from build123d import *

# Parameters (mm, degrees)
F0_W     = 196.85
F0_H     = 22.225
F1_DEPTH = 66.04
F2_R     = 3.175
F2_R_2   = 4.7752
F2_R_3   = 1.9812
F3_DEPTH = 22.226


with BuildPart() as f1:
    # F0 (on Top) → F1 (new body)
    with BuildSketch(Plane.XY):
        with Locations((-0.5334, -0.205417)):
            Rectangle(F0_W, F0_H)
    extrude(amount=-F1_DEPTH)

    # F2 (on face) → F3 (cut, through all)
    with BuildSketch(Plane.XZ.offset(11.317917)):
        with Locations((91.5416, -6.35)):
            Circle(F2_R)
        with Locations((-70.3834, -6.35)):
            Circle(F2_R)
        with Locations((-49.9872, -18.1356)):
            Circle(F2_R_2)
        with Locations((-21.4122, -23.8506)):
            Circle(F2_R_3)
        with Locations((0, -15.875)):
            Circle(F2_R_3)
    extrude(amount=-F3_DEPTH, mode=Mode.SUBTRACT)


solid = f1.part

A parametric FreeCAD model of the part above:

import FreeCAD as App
import Part
import Sketcher
from FreeCAD import Vector
Q = App.Units.Quantity

doc = App.newDocument("Part")
body = doc.addObject("PartDesign::Body", "Body")

# Sketch on XY plane
sketch1 = body.newObject("Sketcher::SketchObject", "Sketch")
sketch1.AttachmentSupport = (doc.getObject("XY_Plane"), [""])
sketch1.MapMode = "FlatFace"
sketch1.addGeometry(Part.LineSegment(Vector(-99, 11, 0), Vector(-99, -11, 0)), False)
sketch1.addGeometry(Part.LineSegment(Vector(-99, -11, 0), Vector(98, -11, 0)), False)
sketch1.addGeometry(Part.LineSegment(Vector(98, -11, 0), Vector(98, 11, 0)), False)
sketch1.addGeometry(Part.LineSegment(Vector(98, 11, 0), Vector(-99, 11, 0)), False)
sketch1.addConstraint(Sketcher.Constraint("Coincident", 0, 2, 1, 1))
sketch1.addConstraint(Sketcher.Constraint("Coincident", 1, 2, 2, 1))
sketch1.addConstraint(Sketcher.Constraint("Coincident", 2, 2, 3, 1))
sketch1.addConstraint(Sketcher.Constraint("Coincident", 3, 2, 0, 1))
sketch1.addConstraint(Sketcher.Constraint("Vertical", 0))
sketch1.addConstraint(Sketcher.Constraint("Horizontal", 1))
sketch1.addConstraint(Sketcher.Constraint("Vertical", 2))
sketch1.addConstraint(Sketcher.Constraint("Horizontal", 3))
sketch1.addConstraint(Sketcher.Constraint("DistanceX", 1, 1, 1, 2, Q("7.75 in")))
sketch1.addConstraint(Sketcher.Constraint("DistanceY", 0, 2, 0, 1, Q("0.875 in")))
sketch1.addConstraint(Sketcher.Constraint("DistanceX", 0, 2, -1, 1, Q("3.896 in")))
sketch1.addConstraint(Sketcher.Constraint("DistanceY", 0, 2, -1, 1, 11.317917))
pad1 = body.newObject("PartDesign::Pad", "Pad")
pad1.Profile = sketch1
pad1.Length = Q("2.6 in")
pad1.Reversed = True

# Sketch on XZ plane
sketch2 = body.newObject("Sketcher::SketchObject", "Sketch001")
sketch2.AttachmentSupport = (doc.getObject("XZ_Plane"), [""])
sketch2.MapMode = "FlatFace"
sketch2.AttachmentOffset = App.Placement(Vector(0, 0, 11.317917), App.Rotation())
sketch2.addGeometry(Part.Circle(Vector(91.5, -6.3, 0), Vector(0, 0, 1), 3.2), False)
sketch2.addGeometry(Part.Circle(Vector(-70.4, -6.3, 0), Vector(0, 0, 1), 3.2), False)
sketch2.addGeometry(Part.Circle(Vector(-50, -18.1, 0), Vector(0, 0, 1), 4.8), False)
sketch2.addGeometry(Part.Circle(Vector(-21.4, -23.9, 0), Vector(0, 0, 1), 2), False)
sketch2.addGeometry(Part.Circle(Vector(0, -15.9, 0), Vector(0, 0, 1), 2), False)
sketch2.addConstraint(Sketcher.Constraint("Equal", 0, 1))
sketch2.addConstraint(Sketcher.Constraint("Equal", 3, 4))
sketch2.addConstraint(Sketcher.Constraint("PointOnObject", 4, 3, -2))
sketch2.addConstraint(Sketcher.Constraint("Horizontal", 0, 3, 1, 3))
sketch2.addConstraint(Sketcher.Constraint("Diameter", 0, Q("0.25 in")))
sketch2.addConstraint(Sketcher.Constraint("Diameter", 2, Q("0.376 in")))
sketch2.addConstraint(Sketcher.Constraint("Diameter", 3, Q("0.156 in")))
sketch2.addConstraint(Sketcher.Constraint("DistanceY", 0, 3, -1, 1, Q("0.25 in")))
sketch2.addConstraint(Sketcher.Constraint("DistanceX", -1, 1, 0, 3, Q("3.604 in")))
sketch2.addConstraint(Sketcher.Constraint("DistanceX", 1, 3, -1, 1, Q("2.771 in")))
sketch2.addConstraint(Sketcher.Constraint("DistanceX", 2, 3, -1, 1, Q("1.968 in")))
sketch2.addConstraint(Sketcher.Constraint("DistanceY", 2, 3, -1, 1, Q("0.714 in")))
sketch2.addConstraint(Sketcher.Constraint("DistanceX", 3, 3, -1, 1, Q("0.843 in")))
sketch2.addConstraint(Sketcher.Constraint("DistanceY", 3, 3, -1, 1, Q("0.939 in")))
sketch2.addConstraint(Sketcher.Constraint("DistanceY", 4, 3, -1, 1, Q("0.625 in")))
pocket1 = body.newObject("PartDesign::Pocket", "Pocket")
pocket1.Profile = sketch2
pocket1.Type = "ThroughAll"

doc.recompute()
